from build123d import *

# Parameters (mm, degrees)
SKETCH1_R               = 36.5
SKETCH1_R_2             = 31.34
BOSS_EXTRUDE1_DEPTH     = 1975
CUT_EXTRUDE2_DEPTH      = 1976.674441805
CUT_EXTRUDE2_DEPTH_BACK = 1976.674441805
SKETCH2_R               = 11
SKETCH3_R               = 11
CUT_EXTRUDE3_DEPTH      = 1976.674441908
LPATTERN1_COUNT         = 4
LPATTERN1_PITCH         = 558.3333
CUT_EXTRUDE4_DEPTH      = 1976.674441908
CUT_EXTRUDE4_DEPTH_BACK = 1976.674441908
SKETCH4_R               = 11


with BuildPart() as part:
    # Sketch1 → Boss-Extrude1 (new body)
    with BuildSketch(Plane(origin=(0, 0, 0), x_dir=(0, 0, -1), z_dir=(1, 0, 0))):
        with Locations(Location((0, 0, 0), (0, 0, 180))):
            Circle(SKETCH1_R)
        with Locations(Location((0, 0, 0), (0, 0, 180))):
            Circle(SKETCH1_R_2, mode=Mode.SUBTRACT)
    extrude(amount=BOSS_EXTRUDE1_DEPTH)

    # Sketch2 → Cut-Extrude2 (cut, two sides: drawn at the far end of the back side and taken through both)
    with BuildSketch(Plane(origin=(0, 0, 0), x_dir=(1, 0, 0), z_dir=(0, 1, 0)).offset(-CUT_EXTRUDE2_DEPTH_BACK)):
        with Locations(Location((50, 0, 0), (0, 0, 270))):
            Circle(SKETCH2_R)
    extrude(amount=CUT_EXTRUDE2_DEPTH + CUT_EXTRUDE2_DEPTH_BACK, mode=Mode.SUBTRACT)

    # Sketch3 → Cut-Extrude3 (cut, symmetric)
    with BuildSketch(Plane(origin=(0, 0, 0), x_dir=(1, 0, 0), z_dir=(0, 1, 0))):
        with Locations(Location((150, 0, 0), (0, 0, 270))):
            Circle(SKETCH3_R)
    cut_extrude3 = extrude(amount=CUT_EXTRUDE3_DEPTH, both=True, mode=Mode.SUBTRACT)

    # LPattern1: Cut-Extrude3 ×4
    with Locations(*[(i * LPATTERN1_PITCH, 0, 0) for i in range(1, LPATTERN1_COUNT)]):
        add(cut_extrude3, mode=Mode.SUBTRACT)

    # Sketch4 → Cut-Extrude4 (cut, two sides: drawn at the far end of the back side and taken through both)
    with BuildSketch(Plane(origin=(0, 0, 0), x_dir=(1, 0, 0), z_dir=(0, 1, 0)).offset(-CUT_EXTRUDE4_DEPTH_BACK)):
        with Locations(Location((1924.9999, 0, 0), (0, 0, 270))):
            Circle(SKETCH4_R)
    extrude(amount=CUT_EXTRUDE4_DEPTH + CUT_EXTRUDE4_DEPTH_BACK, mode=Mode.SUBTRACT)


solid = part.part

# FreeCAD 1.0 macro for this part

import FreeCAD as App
import Part
import Sketcher

V = App.Vector

doc = App.newDocument("Part")
body = doc.addObject("PartDesign::Body", "Body")

# Sketch on YZ plane
sketch1 = doc.addObject("Sketcher::SketchObject", "Sketch")
body.addObject(sketch1)
sketch1.AttachmentSupport = (doc.YZ_Plane, [""])
sketch1.MapMode = "FlatFace"
sketch1.addGeometry(Part.Circle(V(0, 0, 0), V(0, 0, 1), 36), False)
sketch1.addGeometry(Part.Circle(V(0, 0, 0), V(0, 0, 1), 31), False)
sketch1.addConstraint(Sketcher.Constraint("Coincident", 0, 3, -1, 1))
sketch1.addConstraint(Sketcher.Constraint("Coincident", 1, 3, -1, 1))
sketch1.addConstraint(Sketcher.Constraint("Diameter", 0, 73.0))
sketch1.addConstraint(Sketcher.Constraint("Diameter", 1, 62.68))
pad1 = doc.addObject("PartDesign::Pad", "Pad")
body.addObject(pad1)
pad1.Profile = sketch1
pad1.Length = 1975

# Sketch on XZ plane
sketch2 = doc.addObject("Sketcher::SketchObject", "Sketch001")
body.addObject(sketch2)
sketch2.AttachmentSupport = (doc.XZ_Plane, [""])
sketch2.MapMode = "FlatFace"
sketch2.addGeometry(Part.Circle(V(50, 0, 0), V(0, 0, 1), 11), False)
sketch2.addConstraint(Sketcher.Constraint("PointOnObject", 0, 3, -1))
sketch2.addConstraint(Sketcher.Constraint("Diameter", 0, 22.0))
sketch2.addConstraint(Sketcher.Constraint("DistanceX", -1, 1, 0, 3, 50.0))
pocket1 = doc.addObject("PartDesign::Pocket", "Pocket")
body.addObject(pocket1)
pocket1.Profile = sketch2
pocket1.Type = "ThroughAll"
pocket1.Midplane = True

# Sketch on XZ plane
sketch3 = doc.addObject("Sketcher::SketchObject", "Sketch002")
body.addObject(sketch3)
sketch3.AttachmentSupport = (doc.XZ_Plane, [""])
sketch3.MapMode = "FlatFace"
sketch3.addGeometry(Part.Circle(V(150, 0, 0), V(0, 0, 1), 11), False)
sketch3.addConstraint(Sketcher.Constraint("PointOnObject", 0, 3, -1))
sketch3.addConstraint(Sketcher.Constraint("Diameter", 0, 22.0))
sketch3.addConstraint(Sketcher.Constraint("DistanceX", -1, 1, 0, 3, 150.0))
pocket2 = doc.addObject("PartDesign::Pocket", "Pocket001")
body.addObject(pocket2)
pocket2.Profile = sketch3
pocket2.Length = 3953.348884
pocket2.Midplane = True
doc.recompute()

linearpattern = doc.addObject("PartDesign::LinearPattern", "LinearPattern")
body.addObject(linearpattern)
linearpattern.Originals = [pocket2]
linearpattern.Direction = (doc.X_Axis, [""])
linearpattern.Mode = "offset"
linearpattern.Offset = 558.3333
linearpattern.Occurrences = 4
body.Tip = linearpattern

# Sketch on XZ plane
sketch4 = doc.addObject("Sketcher::SketchObject", "Sketch003")
body.addObject(sketch4)
sketch4.AttachmentSupport = (doc.XZ_Plane, [""])
sketch4.MapMode = "FlatFace"
sketch4.addGeometry(Part.Circle(V(1924.9999, 0, 0), V(0, 0, 1), 11), False)
sketch4.addConstraint(Sketcher.Constraint("PointOnObject", 0, 3, -1))
sketch4.addConstraint(Sketcher.Constraint("Diameter", 0, 22.0))
sketch4.addConstraint(Sketcher.Constraint("DistanceX", -1, 1, 0, 3, 1924.9999))
pocket3 = doc.addObject("PartDesign::Pocket", "Pocket002")
body.addObject(pocket3)
pocket3.Profile = sketch4
pocket3.Type = "ThroughAll"
pocket3.Midplane = True

doc.recompute()
